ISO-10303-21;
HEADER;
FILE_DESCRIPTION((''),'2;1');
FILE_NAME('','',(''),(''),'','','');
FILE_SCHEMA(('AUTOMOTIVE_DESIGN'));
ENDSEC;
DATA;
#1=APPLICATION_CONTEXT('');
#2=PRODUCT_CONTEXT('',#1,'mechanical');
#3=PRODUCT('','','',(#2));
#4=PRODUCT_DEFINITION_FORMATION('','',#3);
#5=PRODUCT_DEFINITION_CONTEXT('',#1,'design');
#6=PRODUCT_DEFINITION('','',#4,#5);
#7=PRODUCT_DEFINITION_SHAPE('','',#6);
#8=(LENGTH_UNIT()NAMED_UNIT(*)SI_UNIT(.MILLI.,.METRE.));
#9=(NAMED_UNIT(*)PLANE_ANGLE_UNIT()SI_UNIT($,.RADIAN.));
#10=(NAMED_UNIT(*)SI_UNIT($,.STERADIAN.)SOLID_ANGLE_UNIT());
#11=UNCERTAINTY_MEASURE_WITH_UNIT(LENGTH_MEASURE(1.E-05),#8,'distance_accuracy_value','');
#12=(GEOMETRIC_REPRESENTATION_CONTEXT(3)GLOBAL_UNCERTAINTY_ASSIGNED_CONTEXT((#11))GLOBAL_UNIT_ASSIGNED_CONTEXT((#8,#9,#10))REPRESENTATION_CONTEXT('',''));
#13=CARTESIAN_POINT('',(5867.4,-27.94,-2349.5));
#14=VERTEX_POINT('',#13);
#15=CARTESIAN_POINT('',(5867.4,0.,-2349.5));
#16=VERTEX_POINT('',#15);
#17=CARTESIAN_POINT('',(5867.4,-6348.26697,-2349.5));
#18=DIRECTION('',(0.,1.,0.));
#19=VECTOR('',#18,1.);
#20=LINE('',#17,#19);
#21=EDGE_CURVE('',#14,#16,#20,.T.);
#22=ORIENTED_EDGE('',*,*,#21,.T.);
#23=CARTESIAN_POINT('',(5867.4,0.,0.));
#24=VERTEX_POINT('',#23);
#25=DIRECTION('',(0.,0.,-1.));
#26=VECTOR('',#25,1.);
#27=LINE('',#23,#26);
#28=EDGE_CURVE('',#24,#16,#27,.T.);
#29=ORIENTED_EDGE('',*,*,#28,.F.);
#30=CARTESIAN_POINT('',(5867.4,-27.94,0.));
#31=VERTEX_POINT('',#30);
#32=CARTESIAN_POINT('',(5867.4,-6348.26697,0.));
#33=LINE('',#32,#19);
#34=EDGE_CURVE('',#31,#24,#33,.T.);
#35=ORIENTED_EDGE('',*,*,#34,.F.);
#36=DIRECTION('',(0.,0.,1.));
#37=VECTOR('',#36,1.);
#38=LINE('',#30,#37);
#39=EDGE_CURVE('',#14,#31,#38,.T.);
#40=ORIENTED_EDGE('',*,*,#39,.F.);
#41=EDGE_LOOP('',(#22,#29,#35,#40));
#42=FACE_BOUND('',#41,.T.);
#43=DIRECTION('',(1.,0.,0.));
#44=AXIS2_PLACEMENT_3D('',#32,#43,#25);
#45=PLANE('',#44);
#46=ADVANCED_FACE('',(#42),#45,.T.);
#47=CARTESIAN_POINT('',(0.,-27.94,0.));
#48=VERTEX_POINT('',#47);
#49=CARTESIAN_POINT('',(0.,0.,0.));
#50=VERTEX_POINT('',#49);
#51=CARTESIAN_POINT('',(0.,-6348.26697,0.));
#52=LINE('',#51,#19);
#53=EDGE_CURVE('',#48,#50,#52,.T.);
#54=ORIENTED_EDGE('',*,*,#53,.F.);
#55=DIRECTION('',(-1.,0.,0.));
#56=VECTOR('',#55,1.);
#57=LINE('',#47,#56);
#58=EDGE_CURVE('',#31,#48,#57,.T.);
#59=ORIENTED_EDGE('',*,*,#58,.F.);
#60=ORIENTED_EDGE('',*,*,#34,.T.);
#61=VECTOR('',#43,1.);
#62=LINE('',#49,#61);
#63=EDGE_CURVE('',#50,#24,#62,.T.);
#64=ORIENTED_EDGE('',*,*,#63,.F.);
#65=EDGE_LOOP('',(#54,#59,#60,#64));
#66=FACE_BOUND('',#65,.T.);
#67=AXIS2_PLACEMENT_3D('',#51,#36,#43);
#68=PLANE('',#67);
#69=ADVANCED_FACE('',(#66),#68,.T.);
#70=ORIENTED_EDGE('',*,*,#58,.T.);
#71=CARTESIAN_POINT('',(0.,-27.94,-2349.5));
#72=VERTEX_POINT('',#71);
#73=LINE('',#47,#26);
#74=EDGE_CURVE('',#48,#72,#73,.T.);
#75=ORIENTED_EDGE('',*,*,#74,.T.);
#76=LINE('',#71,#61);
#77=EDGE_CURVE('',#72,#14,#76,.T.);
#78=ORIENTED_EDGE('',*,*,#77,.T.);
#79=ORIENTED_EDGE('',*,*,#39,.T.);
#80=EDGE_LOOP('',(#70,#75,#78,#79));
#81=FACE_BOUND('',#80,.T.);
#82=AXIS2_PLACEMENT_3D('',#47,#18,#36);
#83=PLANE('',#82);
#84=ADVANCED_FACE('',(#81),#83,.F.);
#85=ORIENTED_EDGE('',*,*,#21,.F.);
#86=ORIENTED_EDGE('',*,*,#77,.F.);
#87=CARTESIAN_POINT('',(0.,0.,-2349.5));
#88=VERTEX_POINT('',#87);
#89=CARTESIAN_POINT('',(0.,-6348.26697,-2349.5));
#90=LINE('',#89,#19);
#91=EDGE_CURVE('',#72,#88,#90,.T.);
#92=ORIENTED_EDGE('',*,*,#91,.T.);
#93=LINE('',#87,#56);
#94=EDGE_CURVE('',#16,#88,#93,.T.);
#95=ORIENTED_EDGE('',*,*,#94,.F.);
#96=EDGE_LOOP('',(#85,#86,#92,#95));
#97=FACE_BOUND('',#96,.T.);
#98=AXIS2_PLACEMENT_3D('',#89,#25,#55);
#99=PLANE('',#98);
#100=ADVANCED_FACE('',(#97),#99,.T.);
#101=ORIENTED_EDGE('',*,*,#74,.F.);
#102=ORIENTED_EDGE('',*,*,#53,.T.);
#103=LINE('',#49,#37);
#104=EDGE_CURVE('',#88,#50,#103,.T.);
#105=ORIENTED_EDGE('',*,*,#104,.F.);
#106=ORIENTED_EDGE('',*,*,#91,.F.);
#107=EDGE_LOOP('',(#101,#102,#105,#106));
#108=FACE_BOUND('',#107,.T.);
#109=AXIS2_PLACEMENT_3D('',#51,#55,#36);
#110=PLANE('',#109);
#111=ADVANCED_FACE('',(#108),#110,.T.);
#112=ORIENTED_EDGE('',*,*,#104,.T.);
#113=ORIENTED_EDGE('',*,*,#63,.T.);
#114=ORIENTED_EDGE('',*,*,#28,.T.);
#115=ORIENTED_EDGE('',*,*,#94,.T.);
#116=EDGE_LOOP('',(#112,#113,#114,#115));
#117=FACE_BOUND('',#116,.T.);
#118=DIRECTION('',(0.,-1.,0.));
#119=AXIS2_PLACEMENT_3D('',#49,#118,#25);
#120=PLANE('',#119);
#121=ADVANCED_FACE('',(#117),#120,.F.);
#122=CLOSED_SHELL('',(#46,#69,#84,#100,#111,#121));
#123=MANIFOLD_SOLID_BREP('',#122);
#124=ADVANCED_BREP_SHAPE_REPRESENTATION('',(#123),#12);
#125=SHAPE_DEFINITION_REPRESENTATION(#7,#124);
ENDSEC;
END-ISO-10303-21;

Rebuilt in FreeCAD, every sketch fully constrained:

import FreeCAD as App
import Part
import Sketcher

V = App.Vector
Q = App.Units.Quantity

doc = App.newDocument("Part")
body = doc.addObject("PartDesign::Body", "Body")

sketch1 = body.newObject("Sketcher::SketchObject", "Sketch")
sketch1.AttachmentSupport = (doc.getObject("XZ_Plane"), [""])
sketch1.MapMode = "FlatFace"
sketch1.addGeometry(Part.LineSegment(V(0, -2349.5, 0), V(0, 0, 0)), False)
sketch1.addGeometry(Part.LineSegment(V(0, 0, 0), V(5867.4, 0, 0)), False)
sketch1.addGeometry(Part.LineSegment(V(5867.4, 0, 0), V(5867.4, -2349.5, 0)), False)
sketch1.addGeometry(Part.LineSegment(V(5867.4, -2349.5, 0), V(0, -2349.5, 0)), False)
sketch1.addConstraint(Sketcher.Constraint("Coincident", 0, 2, 1, 1))
sketch1.addConstraint(Sketcher.Constraint("Coincident", 1, 2, 2, 1))
sketch1.addConstraint(Sketcher.Constraint("Coincident", 2, 2, 3, 1))
sketch1.addConstraint(Sketcher.Constraint("Coincident", 3, 2, 0, 1))
sketch1.addConstraint(Sketcher.Constraint("Vertical", 0))
sketch1.addConstraint(Sketcher.Constraint("Horizontal", 1))
sketch1.addConstraint(Sketcher.Constraint("Vertical", 2))
sketch1.addConstraint(Sketcher.Constraint("Horizontal", 3))
sketch1.addConstraint(Sketcher.Constraint("Coincident", 0, 2, -1, 1))
sketch1.addConstraint(Sketcher.Constraint("DistanceX", 1, 1, 1, 2, Q("231 in")))
sketch1.addConstraint(Sketcher.Constraint("DistanceY", 0, 1, 0, 2, Q("92.5 in")))
pad1 = body.newObject("PartDesign::Pad", "Pad")
pad1.Profile = sketch1
pad1.Length = Q("1.1 in")

doc.recompute()
